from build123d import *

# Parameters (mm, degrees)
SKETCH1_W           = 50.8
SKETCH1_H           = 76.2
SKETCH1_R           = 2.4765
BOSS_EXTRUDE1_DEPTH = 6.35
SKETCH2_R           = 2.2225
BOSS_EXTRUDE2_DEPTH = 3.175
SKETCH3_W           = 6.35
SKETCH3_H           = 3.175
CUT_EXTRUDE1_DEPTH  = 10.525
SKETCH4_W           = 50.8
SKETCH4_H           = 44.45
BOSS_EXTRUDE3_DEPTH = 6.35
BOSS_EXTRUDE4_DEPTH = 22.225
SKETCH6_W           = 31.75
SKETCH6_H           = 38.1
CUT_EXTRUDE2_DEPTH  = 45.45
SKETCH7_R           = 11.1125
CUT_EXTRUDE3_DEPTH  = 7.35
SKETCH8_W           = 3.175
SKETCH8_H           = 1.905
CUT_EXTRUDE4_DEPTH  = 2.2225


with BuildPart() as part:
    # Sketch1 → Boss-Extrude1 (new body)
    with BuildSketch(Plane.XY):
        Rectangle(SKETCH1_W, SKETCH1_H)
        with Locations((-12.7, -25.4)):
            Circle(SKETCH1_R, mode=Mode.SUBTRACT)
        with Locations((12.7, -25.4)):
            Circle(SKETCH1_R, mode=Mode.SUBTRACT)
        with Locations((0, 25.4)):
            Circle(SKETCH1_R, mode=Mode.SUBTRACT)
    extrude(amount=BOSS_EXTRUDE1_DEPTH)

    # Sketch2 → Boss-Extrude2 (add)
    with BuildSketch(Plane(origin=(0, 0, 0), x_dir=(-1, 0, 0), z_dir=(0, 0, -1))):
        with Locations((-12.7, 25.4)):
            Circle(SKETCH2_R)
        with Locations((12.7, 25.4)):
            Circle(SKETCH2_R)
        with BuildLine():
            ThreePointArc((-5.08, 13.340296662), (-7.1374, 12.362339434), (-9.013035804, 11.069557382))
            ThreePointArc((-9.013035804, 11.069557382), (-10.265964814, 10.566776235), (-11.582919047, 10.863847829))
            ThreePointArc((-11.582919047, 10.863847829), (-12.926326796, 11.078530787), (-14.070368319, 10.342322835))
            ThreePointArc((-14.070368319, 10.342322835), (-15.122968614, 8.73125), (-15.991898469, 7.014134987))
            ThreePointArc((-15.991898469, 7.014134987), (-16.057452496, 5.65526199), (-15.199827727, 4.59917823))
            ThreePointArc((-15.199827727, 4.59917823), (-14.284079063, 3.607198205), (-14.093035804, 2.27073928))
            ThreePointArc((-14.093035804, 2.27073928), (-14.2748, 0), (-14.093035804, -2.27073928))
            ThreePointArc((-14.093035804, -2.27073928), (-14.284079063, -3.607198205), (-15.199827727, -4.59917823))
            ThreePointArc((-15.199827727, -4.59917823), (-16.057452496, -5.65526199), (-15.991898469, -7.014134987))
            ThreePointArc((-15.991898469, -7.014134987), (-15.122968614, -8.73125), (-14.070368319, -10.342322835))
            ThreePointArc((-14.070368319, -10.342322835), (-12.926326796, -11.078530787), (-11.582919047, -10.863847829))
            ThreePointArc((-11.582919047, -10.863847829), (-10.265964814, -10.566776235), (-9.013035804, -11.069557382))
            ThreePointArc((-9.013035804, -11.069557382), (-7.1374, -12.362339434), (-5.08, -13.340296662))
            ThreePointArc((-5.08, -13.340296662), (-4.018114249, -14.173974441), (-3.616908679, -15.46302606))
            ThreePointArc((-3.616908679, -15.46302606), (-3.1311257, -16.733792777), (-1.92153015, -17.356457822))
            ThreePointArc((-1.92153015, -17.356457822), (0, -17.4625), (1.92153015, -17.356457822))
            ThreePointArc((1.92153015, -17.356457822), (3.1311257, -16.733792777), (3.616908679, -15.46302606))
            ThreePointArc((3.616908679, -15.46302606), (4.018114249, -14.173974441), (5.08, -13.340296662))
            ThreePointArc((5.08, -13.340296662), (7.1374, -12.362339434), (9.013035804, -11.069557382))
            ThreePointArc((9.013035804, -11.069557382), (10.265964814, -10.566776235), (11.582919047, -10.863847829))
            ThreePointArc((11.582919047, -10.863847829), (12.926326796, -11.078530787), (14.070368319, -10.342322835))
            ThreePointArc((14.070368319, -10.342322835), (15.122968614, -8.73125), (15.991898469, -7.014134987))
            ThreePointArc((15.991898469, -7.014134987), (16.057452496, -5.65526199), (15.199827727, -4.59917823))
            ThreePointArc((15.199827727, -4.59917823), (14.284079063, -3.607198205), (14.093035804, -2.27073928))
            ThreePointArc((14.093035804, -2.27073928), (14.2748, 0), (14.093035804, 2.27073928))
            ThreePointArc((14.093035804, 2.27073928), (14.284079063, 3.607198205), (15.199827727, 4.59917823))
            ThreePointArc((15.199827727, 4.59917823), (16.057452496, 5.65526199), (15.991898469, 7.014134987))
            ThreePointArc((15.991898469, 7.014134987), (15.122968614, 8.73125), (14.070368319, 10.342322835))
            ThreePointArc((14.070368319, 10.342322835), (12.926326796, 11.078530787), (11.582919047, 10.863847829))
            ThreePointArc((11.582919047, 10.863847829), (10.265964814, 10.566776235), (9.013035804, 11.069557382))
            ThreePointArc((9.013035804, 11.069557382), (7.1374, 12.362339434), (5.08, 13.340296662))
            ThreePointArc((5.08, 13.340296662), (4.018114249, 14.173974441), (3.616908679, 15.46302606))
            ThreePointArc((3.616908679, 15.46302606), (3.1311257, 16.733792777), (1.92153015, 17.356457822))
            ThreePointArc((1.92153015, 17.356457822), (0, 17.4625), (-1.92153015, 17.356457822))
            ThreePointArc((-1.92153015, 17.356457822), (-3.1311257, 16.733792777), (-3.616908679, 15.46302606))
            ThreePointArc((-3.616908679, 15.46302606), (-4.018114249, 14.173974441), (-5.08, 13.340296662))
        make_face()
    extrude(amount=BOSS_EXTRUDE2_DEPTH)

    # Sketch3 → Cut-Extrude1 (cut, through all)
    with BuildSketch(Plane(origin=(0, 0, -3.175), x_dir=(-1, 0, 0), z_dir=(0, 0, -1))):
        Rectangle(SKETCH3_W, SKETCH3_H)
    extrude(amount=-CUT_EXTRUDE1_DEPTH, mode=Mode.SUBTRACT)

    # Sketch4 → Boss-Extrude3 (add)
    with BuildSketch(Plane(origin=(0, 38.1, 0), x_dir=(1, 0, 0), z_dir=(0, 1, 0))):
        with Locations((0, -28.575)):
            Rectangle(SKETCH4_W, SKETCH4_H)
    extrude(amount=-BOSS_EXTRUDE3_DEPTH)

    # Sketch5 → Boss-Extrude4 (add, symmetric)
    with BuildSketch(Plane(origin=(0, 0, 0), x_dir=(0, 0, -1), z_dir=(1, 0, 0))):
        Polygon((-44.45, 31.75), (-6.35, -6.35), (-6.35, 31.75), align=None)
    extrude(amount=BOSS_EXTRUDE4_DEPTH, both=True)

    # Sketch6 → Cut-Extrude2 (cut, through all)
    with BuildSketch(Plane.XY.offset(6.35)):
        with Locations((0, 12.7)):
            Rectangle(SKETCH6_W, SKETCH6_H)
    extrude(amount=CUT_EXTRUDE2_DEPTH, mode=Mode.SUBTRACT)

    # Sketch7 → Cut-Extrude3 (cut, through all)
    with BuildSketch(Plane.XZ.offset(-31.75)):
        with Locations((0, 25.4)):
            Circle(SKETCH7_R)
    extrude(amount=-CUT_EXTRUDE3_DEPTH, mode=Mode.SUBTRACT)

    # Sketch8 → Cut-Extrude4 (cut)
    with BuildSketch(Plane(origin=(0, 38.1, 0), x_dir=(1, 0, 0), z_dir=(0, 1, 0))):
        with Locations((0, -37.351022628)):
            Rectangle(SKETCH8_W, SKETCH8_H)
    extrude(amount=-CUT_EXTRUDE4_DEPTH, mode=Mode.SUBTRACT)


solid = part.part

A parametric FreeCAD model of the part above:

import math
import FreeCAD as App
import Part
import Sketcher
Q = App.Units.Quantity


def add_polygon(sketch, points):
    """Adds a closed chain of lines whose ends are joined by coincident constraints."""
    first, n = sketch.GeometryCount, len(points)
    for a, b in zip(points, points[1:] + points[:1]):
        sketch.addGeometry(Part.LineSegment(App.Vector(*a, 0), App.Vector(*b, 0)), False)
    for i in range(n):
        sketch.addConstraint(Sketcher.Constraint("Coincident", first + i, 2, first + (i + 1) % n, 1))

doc = App.newDocument("Part")
body = doc.addObject("PartDesign::Body", "Body")

sketch1 = body.newObject("Sketcher::SketchObject", "Sketch")
sketch1.AttachmentSupport = (doc.getObject("XY_Plane"), [""])
sketch1.MapMode = "FlatFace"
add_polygon(sketch1, [(-25.4, 38.1), (-25.4, -38.1), (25.4, -38.1), (25.4, 38.1)])
sketch1.addGeometry(Part.Circle(App.Vector(-12.7, -25.4, 0), App.Vector(0, 0, 1), 2.4765), False)
sketch1.addGeometry(Part.Circle(App.Vector(12.7, -25.4, 0), App.Vector(0, 0, 1), 2.4765), False)
sketch1.addGeometry(Part.Circle(App.Vector(0, 25.4, 0), App.Vector(0, 0, 1), 2.4765), False)
sketch1.addConstraint([
    Sketcher.Constraint("Vertical", 0),
    Sketcher.Constraint("Horizontal", 1),
    Sketcher.Constraint("Vertical", 2),
    Sketcher.Constraint("Horizontal", 3),
    Sketcher.Constraint("Equal", 4, 5),
    Sketcher.Constraint("Equal", 5, 6),
    Sketcher.Constraint("Symmetric", 0, 2, 2, 2, -1, 1),
    Sketcher.Constraint("Symmetric", 4, 3, 5, 3, -2),
    Sketcher.Constraint("PointOnObject", 6, 3, -2),
    Sketcher.Constraint("DistanceX", 1, 1, 1, 2, Q("2 in")),
    Sketcher.Constraint("DistanceY", 0, 2, 0, 1, Q("3 in")),
    Sketcher.Constraint("Diameter", 4, Q("0.195 in")),
    Sketcher.Constraint("DistanceY", 4, 3, -1, 1, Q("1 in")),
    Sketcher.Constraint("DistanceY", -1, 1, 6, 3, Q("1 in")),
    Sketcher.Constraint("DistanceX", 4, 3, 5, 3, Q("1 in")),
])
pad1 = body.newObject("PartDesign::Pad", "Pad")
pad1.Profile = sketch1
pad1.Length = Q("0.25 in")

sketch2 = body.newObject("Sketcher::SketchObject", "Sketch001")
sketch2.AttachmentSupport = (doc.getObject("XY_Plane"), [""])
sketch2.MapMode = "FlatFace"
sketch2.addGeometry([
    Part.Circle(App.Vector(12.7, 25.4, 0), App.Vector(0, 0, 1), 2.2225),
    Part.Circle(App.Vector(-12.7, 25.4, 0), App.Vector(0, 0, 1), 2.2225),
    Part.ArcOfCircle(Part.Circle(App.Vector(0, 0, 0), App.Vector(0, 0, 1), 14.2748), math.radians(50.84689), math.radians(69.15311)),
    Part.ArcOfCircle(Part.Circle(App.Vector(10.447205, 12.830963, 0), App.Vector(0, 0, 1), 2.271429), math.radians(-129.15311), math.radians(-60)),
    Part.ArcOfCircle(Part.Circle(App.Vector(12.535419, 9.214069, 0), App.Vector(0, 0, 1), 1.905), math.radians(36.317478), math.radians(120)),
    Part.ArcOfCircle(Part.Circle(App.Vector(0, 0, 0), App.Vector(0, 0, 1), 17.4625), math.radians(23.682522), math.radians(36.317478)),
    Part.ArcOfCircle(Part.Circle(App.Vector(14.247328, 6.248957, 0), App.Vector(0, 0, 1), 1.905), math.radians(-60), math.radians(23.682522)),
    Part.ArcOfCircle(Part.Circle(App.Vector(16.335542, 2.632063, 0), App.Vector(0, 0, 1), 2.271429), math.radians(120), math.radians(189.15311)),
    Part.ArcOfCircle(Part.Circle(App.Vector(0, 0, 0), App.Vector(0, 0, 1), 14.2748), math.radians(-9.15311), math.radians(9.15311)),
    Part.ArcOfCircle(Part.Circle(App.Vector(16.335542, -2.632063, 0), App.Vector(0, 0, 1), 2.271429), math.radians(170.84689), math.radians(240)),
    Part.ArcOfCircle(Part.Circle(App.Vector(14.247328, -6.248957, 0), App.Vector(0, 0, 1), 1.905), math.radians(-23.682522), math.radians(60)),
    Part.ArcOfCircle(Part.Circle(App.Vector(0, 0, 0), App.Vector(0, 0, 1), 17.4625), math.radians(-36.317478), math.radians(-23.682522)),
    Part.ArcOfCircle(Part.Circle(App.Vector(12.535419, -9.214069, 0), App.Vector(0, 0, 1), 1.905), math.radians(-120), math.radians(-36.317478)),
    Part.ArcOfCircle(Part.Circle(App.Vector(10.447205, -12.830963, 0), App.Vector(0, 0, 1), 2.271429), math.radians(60), math.radians(129.15311)),
    Part.ArcOfCircle(Part.Circle(App.Vector(0, 0, 0), App.Vector(0, 0, 1), 14.2748), math.radians(-69.15311), math.radians(-50.84689)),
    Part.ArcOfCircle(Part.Circle(App.Vector(5.888338, -15.463026, 0), App.Vector(0, 0, 1), 2.271429), math.radians(110.84689), math.radians(180)),
    Part.ArcOfCircle(Part.Circle(App.Vector(1.711909, -15.463026, 0), App.Vector(0, 0, 1), 1.905), math.radians(-83.682522), math.radians(0)),
    Part.ArcOfCircle(Part.Circle(App.Vector(0, 0, 0), App.Vector(0, 0, 1), 17.4625), math.radians(-96.317478), math.radians(-83.682522)),
    Part.ArcOfCircle(Part.Circle(App.Vector(-1.711909, -15.463026, 0), App.Vector(0, 0, 1), 1.905), math.radians(180), math.radians(263.682522)),
    Part.ArcOfCircle(Part.Circle(App.Vector(-5.888338, -15.463026, 0), App.Vector(0, 0, 1), 2.271429), math.radians(0), math.radians(69.15311)),
    Part.ArcOfCircle(Part.Circle(App.Vector(0, 0, 0), App.Vector(0, 0, 1), 14.2748), math.radians(-129.15311), math.radians(-110.84689)),
    Part.ArcOfCircle(Part.Circle(App.Vector(-10.447205, -12.830963, 0), App.Vector(0, 0, 1), 2.271429), math.radians(50.84689), math.radians(120)),
    Part.ArcOfCircle(Part.Circle(App.Vector(-12.535419, -9.214069, 0), App.Vector(0, 0, 1), 1.905), math.radians(-143.682522), math.radians(-60)),
    Part.ArcOfCircle(Part.Circle(App.Vector(0, 0, 0), App.Vector(0, 0, 1), 17.4625), math.radians(-156.317478), math.radians(-143.682522)),
    Part.ArcOfCircle(Part.Circle(App.Vector(-14.247328, -6.248957, 0), App.Vector(0, 0, 1), 1.905), math.radians(120), math.radians(203.682522)),
    Part.ArcOfCircle(Part.Circle(App.Vector(-16.335542, -2.632063, 0), App.Vector(0, 0, 1), 2.271429), math.radians(-60), math.radians(9.15311)),
    Part.ArcOfCircle(Part.Circle(App.Vector(0, 0, 0), App.Vector(0, 0, 1), 14.2748), math.radians(170.84689), math.radians(189.15311)),
    Part.ArcOfCircle(Part.Circle(App.Vector(-16.335542, 2.632063, 0), App.Vector(0, 0, 1), 2.271429), math.radians(-9.15311), math.radians(60)),
    Part.ArcOfCircle(Part.Circle(App.Vector(-14.247328, 6.248957, 0), App.Vector(0, 0, 1), 1.905), math.radians(156.317478), math.radians(240)),
    Part.ArcOfCircle(Part.Circle(App.Vector(0, 0, 0), App.Vector(0, 0, 1), 17.4625), math.radians(143.682522), math.radians(156.317478)),
    Part.ArcOfCircle(Part.Circle(App.Vector(-12.535419, 9.214069, 0), App.Vector(0, 0, 1), 1.905), math.radians(60), math.radians(143.682522)),
    Part.ArcOfCircle(Part.Circle(App.Vector(-10.447205, 12.830963, 0), App.Vector(0, 0, 1), 2.271429), math.radians(-120), math.radians(-50.84689)),
    Part.ArcOfCircle(Part.Circle(App.Vector(0, 0, 0), App.Vector(0, 0, 1), 14.2748), math.radians(110.84689), math.radians(129.15311)),
    Part.ArcOfCircle(Part.Circle(App.Vector(-5.888338, 15.463026, 0), App.Vector(0, 0, 1), 2.271429), math.radians(-69.15311), math.radians(0)),
    Part.ArcOfCircle(Part.Circle(App.Vector(-1.711909, 15.463026, 0), App.Vector(0, 0, 1), 1.905), math.radians(96.317478), math.radians(180)),
    Part.ArcOfCircle(Part.Circle(App.Vector(0, 0, 0), App.Vector(0, 0, 1), 17.4625), math.radians(83.682522), math.radians(96.317478)),
    Part.ArcOfCircle(Part.Circle(App.Vector(1.711909, 15.463026, 0), App.Vector(0, 0, 1), 1.905), math.radians(0), math.radians(83.682522)),
    Part.ArcOfCircle(Part.Circle(App.Vector(5.888338, 15.463026, 0), App.Vector(0, 0, 1), 2.271429), math.radians(-180), math.radians(-110.84689)),
], False)
sketch2.addConstraint([
    Sketcher.Constraint("Tangent", 2, 1, 3, 1),
    Sketcher.Constraint("Tangent", 3, 2, 4, 2),
    Sketcher.Constraint("Tangent", 4, 1, 5, 2),
    Sketcher.Constraint("Tangent", 5, 1, 6, 2),
    Sketcher.Constraint("Tangent", 6, 1, 7, 1),
    Sketcher.Constraint("Tangent", 7, 2, 8, 2),
    Sketcher.Constraint("Tangent", 8, 1, 9, 1),
    Sketcher.Constraint("Tangent", 9, 2, 10, 2),
    Sketcher.Constraint("Tangent", 10, 1, 11, 2),
    Sketcher.Constraint("Tangent", 11, 1, 12, 2),
    Sketcher.Constraint("Tangent", 12, 1, 13, 1),
    Sketcher.Constraint("Tangent", 13, 2, 14, 2),
    Sketcher.Constraint("Tangent", 14, 1, 15, 1),
    Sketcher.Constraint("Tangent", 15, 2, 16, 2),
    Sketcher.Constraint("Tangent", 16, 1, 17, 2),
    Sketcher.Constraint("Tangent", 17, 1, 18, 2),
    Sketcher.Constraint("Tangent", 18, 1, 19, 1),
    Sketcher.Constraint("Tangent", 19, 2, 20, 2),
    Sketcher.Constraint("Tangent", 20, 1, 21, 1),
    Sketcher.Constraint("Tangent", 21, 2, 22, 2),
    Sketcher.Constraint("Tangent", 22, 1, 23, 2),
    Sketcher.Constraint("Tangent", 23, 1, 24, 2),
    Sketcher.Constraint("Tangent", 24, 1, 25, 1),
    Sketcher.Constraint("Tangent", 25, 2, 26, 2),
    Sketcher.Constraint("Tangent", 26, 1, 27, 1),
    Sketcher.Constraint("Tangent", 27, 2, 28, 2),
    Sketcher.Constraint("Tangent", 28, 1, 29, 2),
    Sketcher.Constraint("Tangent", 29, 1, 30, 2),
    Sketcher.Constraint("Tangent", 30, 1, 31, 1),
    Sketcher.Constraint("Tangent", 31, 2, 32, 2),
    Sketcher.Constraint("Tangent", 32, 1, 33, 1),
    Sketcher.Constraint("Tangent", 33, 2, 34, 2),
    Sketcher.Constraint("Tangent", 34, 1, 35, 2),
    Sketcher.Constraint("Tangent", 35, 1, 36, 2),
    Sketcher.Constraint("Tangent", 36, 1, 37, 1),
    Sketcher.Constraint("Tangent", 37, 2, 2, 2),
    Sketcher.Constraint("Coincident", 2, 3, -1, 1),
    Sketcher.Constraint("Coincident", 5, 3, -1, 1),
    Sketcher.Constraint("Coincident", 8, 3, -1, 1),
    Sketcher.Constraint("Coincident", 11, 3, -1, 1),
    Sketcher.Constraint("Coincident", 14, 3, -1, 1),
    Sketcher.Constraint("Coincident", 17, 3, -1, 1),
    Sketcher.Constraint("Coincident", 20, 3, -1, 1),
    Sketcher.Constraint("Coincident", 23, 3, -1, 1),
    Sketcher.Constraint("Coincident", 26, 3, -1, 1),
    Sketcher.Constraint("Coincident", 29, 3, -1, 1),
    Sketcher.Constraint("Coincident", 32, 3, -1, 1),
    Sketcher.Constraint("Coincident", 35, 3, -1, 1),
    Sketcher.Constraint("Equal", 0, 1),
    Sketcher.Constraint("Equal", 4, 6),
    Sketcher.Constraint("Equal", 3, 7),
    Sketcher.Constraint("Equal", 2, 8),
    Sketcher.Constraint("Equal", 7, 9),
    Sketcher.Constraint("Equal", 6, 10),
    Sketcher.Constraint("Equal", 5, 11),
    Sketcher.Constraint("Equal", 10, 12),
    Sketcher.Constraint("Equal", 9, 13),
    Sketcher.Constraint("Equal", 8, 14),
    Sketcher.Constraint("Equal", 13, 15),
    Sketcher.Constraint("Equal", 12, 16),
    Sketcher.Constraint("Equal", 11, 17),
    Sketcher.Constraint("Equal", 16, 18),
    Sketcher.Constraint("Equal", 15, 19),
    Sketcher.Constraint("Equal", 14, 20),
    Sketcher.Constraint("Equal", 19, 21),
    Sketcher.Constraint("Equal", 18, 22),
    Sketcher.Constraint("Equal", 17, 23),
    Sketcher.Constraint("Equal", 22, 24),
    Sketcher.Constraint("Equal", 21, 25),
    Sketcher.Constraint("Equal", 20, 26),
    Sketcher.Constraint("Equal", 25, 27),
    Sketcher.Constraint("Equal", 24, 28),
    Sketcher.Constraint("Equal", 23, 29),
    Sketcher.Constraint("Equal", 28, 30),
    Sketcher.Constraint("Equal", 27, 31),
    Sketcher.Constraint("Equal", 26, 32),
    Sketcher.Constraint("Equal", 31, 33),
    Sketcher.Constraint("Equal", 30, 34),
    Sketcher.Constraint("Equal", 29, 35),
    Sketcher.Constraint("Equal", 34, 36),
    Sketcher.Constraint("Equal", 33, 37),
    Sketcher.Constraint("Symmetric", 0, 3, 1, 3, -2),
    Sketcher.Constraint("Horizontal", 15, 3, 16, 3),
    Sketcher.Constraint("Horizontal", 16, 3, 18, 3),
    Sketcher.Constraint("Horizontal", 13, 3, 21, 3),
    Sketcher.Constraint("Horizontal", 10, 3, 24, 3),
    Sketcher.Constraint("Horizontal", 7, 3, 27, 3),
    Sketcher.Constraint("Horizontal", 4, 3, 30, 3),
    Sketcher.Constraint("Horizontal", 33, 3, 34, 3),
    Sketcher.Constraint("Horizontal", 34, 3, 36, 3),
    Sketcher.Constraint("Vertical", 7, 3, 9, 3),
    Sketcher.Constraint("Vertical", 4, 3, 12, 3),
    Sketcher.Constraint("Diameter", 0, Q("0.175 in")),
    Sketcher.Constraint("DistanceY", -1, 1, 0, 3, Q("1 in")),
    Sketcher.Constraint("Radius", 2, Q("0.562 in")),
    Sketcher.Constraint("Radius", 4, Q("0.075 in")),
    Sketcher.Constraint("Radius", 5, Q("0.6875 in")),
    Sketcher.Constraint("DistanceX", -1, 1, 0, 3, Q("0.5 in")),
    Sketcher.Constraint("DistanceX", -1, 1, 14, 1, Q("0.2 in")),
    Sketcher.Constraint("DistanceX", -1, 1, 5, 1, Q("15.991898 mm")),
    Sketcher.Constraint("DistanceX", -1, 1, 4, 3, Q("12.535419 mm")),
])
pad2 = body.newObject("PartDesign::Pad", "Pad001")
pad2.Profile = sketch2
pad2.Length = Q("0.125 in")
pad2.Reversed = True

sketch3 = body.newObject("Sketcher::SketchObject", "Sketch002")
sketch3.AttachmentSupport = (doc.getObject("XY_Plane"), [""])
sketch3.MapMode = "FlatFace"
sketch3.AttachmentOffset = App.Placement(App.Vector(0, 0, -0.125 * 25.4), App.Rotation())
add_polygon(sketch3, [(3.175, 1.5875), (3.175, -1.5875), (-3.175, -1.5875), (-3.175, 1.5875)])
sketch3.addConstraint([
    Sketcher.Constraint("Vertical", 0),
    Sketcher.Constraint("Horizontal", 1),
    Sketcher.Constraint("Vertical", 2),
    Sketcher.Constraint("Horizontal", 3),
    Sketcher.Constraint("Symmetric", 0, 2, 2, 2, -1, 1),
    Sketcher.Constraint("DistanceX", 1, 2, 1, 1, Q("0.25 in")),
    Sketcher.Constraint("DistanceY", 0, 2, 0, 1, Q("0.125 in")),
])
pocket1 = body.newObject("PartDesign::Pocket", "Pocket")
pocket1.Profile = sketch3
pocket1.Type = "ThroughAll"
pocket1.Reversed = True

sketch4 = body.newObject("Sketcher::SketchObject", "Sketch003")
sketch4.AttachmentSupport = (doc.getObject("XZ_Plane"), [""])
sketch4.MapMode = "FlatFace"
sketch4.AttachmentOffset = App.Placement(App.Vector(0, 0, -1.5 * 25.4), App.Rotation())
add_polygon(sketch4, [(-25.4, 6.35), (-25.4, 50.8), (25.4, 50.8), (25.4, 6.35)])
sketch4.addConstraint([
    Sketcher.Constraint("Vertical", 0),
    Sketcher.Constraint("Horizontal", 1),
    Sketcher.Constraint("Vertical", 2),
    Sketcher.Constraint("Horizontal", 3),
    Sketcher.Constraint("DistanceX", 1, 1, 1, 2, Q("2 in")),
    Sketcher.Constraint("DistanceX", 0, 2, -1, 1, Q("1 in")),
    Sketcher.Constraint("DistanceY", -1, 1, 0, 2, Q("2 in")),
    Sketcher.Constraint("DistanceY", 0, 1, 0, 2, Q("1.75 in")),
])
pad3 = body.newObject("PartDesign::Pad", "Pad002")
pad3.Profile = sketch4
pad3.Length = Q("0.25 in")

sketch5 = body.newObject("Sketcher::SketchObject", "Sketch004")
sketch5.AttachmentSupport = (doc.getObject("YZ_Plane"), [""])
sketch5.MapMode = "FlatFace"
add_polygon(sketch5, [(31.75, 44.45), (-6.35, 6.35), (31.75, 6.35)])
sketch5.addConstraint([
    Sketcher.Constraint("Horizontal", 1),
    Sketcher.Constraint("Vertical", 2),
    Sketcher.Constraint("Equal", 1, 2),
    Sketcher.Constraint("DistanceX", 1, 1, 1, 2, Q("1.5 in")),
    Sketcher.Constraint("DistanceX", 0, 2, -1, 1, Q("0.25 in")),
    Sketcher.Constraint("DistanceY", -1, 1, 0, 2, Q("0.25 in")),
])
pad4 = body.newObject("PartDesign::Pad", "Pad003")
pad4.Profile = sketch5
pad4.Length = Q("1.75 in")
pad4.Midplane = True

sketch6 = body.newObject("Sketcher::SketchObject", "Sketch005")
sketch6.AttachmentSupport = (doc.getObject("XY_Plane"), [""])
sketch6.MapMode = "FlatFace"
sketch6.AttachmentOffset = App.Placement(App.Vector(0, 0, 0.25 * 25.4), App.Rotation())
add_polygon(sketch6, [(-15.875, 31.75), (-15.875, -6.35), (15.875, -6.35), (15.875, 31.75)])
sketch6.addConstraint([
    Sketcher.Constraint("Vertical", 0),
    Sketcher.Constraint("Horizontal", 1),
    Sketcher.Constraint("Vertical", 2),
    Sketcher.Constraint("Horizontal", 3),
    Sketcher.Constraint("DistanceY", 0, 2, 0, 1, Q("1.5 in")),
    Sketcher.Constraint("DistanceX", 1, 1, 1, 2, Q("1.25 in")),
    Sketcher.Constraint("DistanceY", 0, 2, -1, 1, Q("0.25 in")),
    Sketcher.Constraint("DistanceX", 0, 2, -1, 1, Q("0.625 in")),
])
pocket2 = body.newObject("PartDesign::Pocket", "Pocket001")
pocket2.Profile = sketch6
pocket2.Type = "ThroughAll"
pocket2.Reversed = True

sketch7 = body.newObject("Sketcher::SketchObject", "Sketch006")
sketch7.AttachmentSupport = (doc.getObject("XZ_Plane"), [""])
sketch7.MapMode = "FlatFace"
sketch7.AttachmentOffset = App.Placement(App.Vector(0, 0, -1.25 * 25.4), App.Rotation())
sketch7.addGeometry(Part.Circle(App.Vector(0, 25.4, 0), App.Vector(0, 0, 1), 11.1125), False)
sketch7.addConstraint([
    Sketcher.Constraint("PointOnObject", 0, 3, -2),
    Sketcher.Constraint("Diameter", 0, Q("0.875 in")),
    Sketcher.Constraint("DistanceY", -1, 1, 0, 3, Q("1 in")),
])
pocket3 = body.newObject("PartDesign::Pocket", "Pocket002")
pocket3.Profile = sketch7
pocket3.Type = "ThroughAll"

sketch8 = body.newObject("Sketcher::SketchObject", "Sketch007")
sketch8.AttachmentSupport = (doc.getObject("XZ_Plane"), [""])
sketch8.MapMode = "FlatFace"
sketch8.AttachmentOffset = App.Placement(App.Vector(0, 0, -1.5 * 25.4), App.Rotation())
add_polygon(sketch8, [(-1.5875, 36.398523), (-1.5875, 38.303523), (1.5875, 38.303523), (1.5875, 36.398523)])
sketch8.addConstraint([
    Sketcher.Constraint("Vertical", 0),
    Sketcher.Constraint("Horizontal", 1),
    Sketcher.Constraint("Vertical", 2),
    Sketcher.Constraint("Horizontal", 3),
    Sketcher.Constraint("DistanceX", 1, 1, 1, 2, Q("0.125 in")),
    Sketcher.Constraint("DistanceY", 0, 1, 0, 2, Q("0.075 in")),
    Sketcher.Constraint("DistanceX", 0, 2, -1, 1, Q("0.0625 in")),
    Sketcher.Constraint("DistanceY", -1, 1, 0, 2, Q("38.303523 mm")),
])
pocket4 = body.newObject("PartDesign::Pocket", "Pocket003")
pocket4.Profile = sketch8
pocket4.Length = Q("0.0875 in")
pocket4.Reversed = True

doc.recompute()
